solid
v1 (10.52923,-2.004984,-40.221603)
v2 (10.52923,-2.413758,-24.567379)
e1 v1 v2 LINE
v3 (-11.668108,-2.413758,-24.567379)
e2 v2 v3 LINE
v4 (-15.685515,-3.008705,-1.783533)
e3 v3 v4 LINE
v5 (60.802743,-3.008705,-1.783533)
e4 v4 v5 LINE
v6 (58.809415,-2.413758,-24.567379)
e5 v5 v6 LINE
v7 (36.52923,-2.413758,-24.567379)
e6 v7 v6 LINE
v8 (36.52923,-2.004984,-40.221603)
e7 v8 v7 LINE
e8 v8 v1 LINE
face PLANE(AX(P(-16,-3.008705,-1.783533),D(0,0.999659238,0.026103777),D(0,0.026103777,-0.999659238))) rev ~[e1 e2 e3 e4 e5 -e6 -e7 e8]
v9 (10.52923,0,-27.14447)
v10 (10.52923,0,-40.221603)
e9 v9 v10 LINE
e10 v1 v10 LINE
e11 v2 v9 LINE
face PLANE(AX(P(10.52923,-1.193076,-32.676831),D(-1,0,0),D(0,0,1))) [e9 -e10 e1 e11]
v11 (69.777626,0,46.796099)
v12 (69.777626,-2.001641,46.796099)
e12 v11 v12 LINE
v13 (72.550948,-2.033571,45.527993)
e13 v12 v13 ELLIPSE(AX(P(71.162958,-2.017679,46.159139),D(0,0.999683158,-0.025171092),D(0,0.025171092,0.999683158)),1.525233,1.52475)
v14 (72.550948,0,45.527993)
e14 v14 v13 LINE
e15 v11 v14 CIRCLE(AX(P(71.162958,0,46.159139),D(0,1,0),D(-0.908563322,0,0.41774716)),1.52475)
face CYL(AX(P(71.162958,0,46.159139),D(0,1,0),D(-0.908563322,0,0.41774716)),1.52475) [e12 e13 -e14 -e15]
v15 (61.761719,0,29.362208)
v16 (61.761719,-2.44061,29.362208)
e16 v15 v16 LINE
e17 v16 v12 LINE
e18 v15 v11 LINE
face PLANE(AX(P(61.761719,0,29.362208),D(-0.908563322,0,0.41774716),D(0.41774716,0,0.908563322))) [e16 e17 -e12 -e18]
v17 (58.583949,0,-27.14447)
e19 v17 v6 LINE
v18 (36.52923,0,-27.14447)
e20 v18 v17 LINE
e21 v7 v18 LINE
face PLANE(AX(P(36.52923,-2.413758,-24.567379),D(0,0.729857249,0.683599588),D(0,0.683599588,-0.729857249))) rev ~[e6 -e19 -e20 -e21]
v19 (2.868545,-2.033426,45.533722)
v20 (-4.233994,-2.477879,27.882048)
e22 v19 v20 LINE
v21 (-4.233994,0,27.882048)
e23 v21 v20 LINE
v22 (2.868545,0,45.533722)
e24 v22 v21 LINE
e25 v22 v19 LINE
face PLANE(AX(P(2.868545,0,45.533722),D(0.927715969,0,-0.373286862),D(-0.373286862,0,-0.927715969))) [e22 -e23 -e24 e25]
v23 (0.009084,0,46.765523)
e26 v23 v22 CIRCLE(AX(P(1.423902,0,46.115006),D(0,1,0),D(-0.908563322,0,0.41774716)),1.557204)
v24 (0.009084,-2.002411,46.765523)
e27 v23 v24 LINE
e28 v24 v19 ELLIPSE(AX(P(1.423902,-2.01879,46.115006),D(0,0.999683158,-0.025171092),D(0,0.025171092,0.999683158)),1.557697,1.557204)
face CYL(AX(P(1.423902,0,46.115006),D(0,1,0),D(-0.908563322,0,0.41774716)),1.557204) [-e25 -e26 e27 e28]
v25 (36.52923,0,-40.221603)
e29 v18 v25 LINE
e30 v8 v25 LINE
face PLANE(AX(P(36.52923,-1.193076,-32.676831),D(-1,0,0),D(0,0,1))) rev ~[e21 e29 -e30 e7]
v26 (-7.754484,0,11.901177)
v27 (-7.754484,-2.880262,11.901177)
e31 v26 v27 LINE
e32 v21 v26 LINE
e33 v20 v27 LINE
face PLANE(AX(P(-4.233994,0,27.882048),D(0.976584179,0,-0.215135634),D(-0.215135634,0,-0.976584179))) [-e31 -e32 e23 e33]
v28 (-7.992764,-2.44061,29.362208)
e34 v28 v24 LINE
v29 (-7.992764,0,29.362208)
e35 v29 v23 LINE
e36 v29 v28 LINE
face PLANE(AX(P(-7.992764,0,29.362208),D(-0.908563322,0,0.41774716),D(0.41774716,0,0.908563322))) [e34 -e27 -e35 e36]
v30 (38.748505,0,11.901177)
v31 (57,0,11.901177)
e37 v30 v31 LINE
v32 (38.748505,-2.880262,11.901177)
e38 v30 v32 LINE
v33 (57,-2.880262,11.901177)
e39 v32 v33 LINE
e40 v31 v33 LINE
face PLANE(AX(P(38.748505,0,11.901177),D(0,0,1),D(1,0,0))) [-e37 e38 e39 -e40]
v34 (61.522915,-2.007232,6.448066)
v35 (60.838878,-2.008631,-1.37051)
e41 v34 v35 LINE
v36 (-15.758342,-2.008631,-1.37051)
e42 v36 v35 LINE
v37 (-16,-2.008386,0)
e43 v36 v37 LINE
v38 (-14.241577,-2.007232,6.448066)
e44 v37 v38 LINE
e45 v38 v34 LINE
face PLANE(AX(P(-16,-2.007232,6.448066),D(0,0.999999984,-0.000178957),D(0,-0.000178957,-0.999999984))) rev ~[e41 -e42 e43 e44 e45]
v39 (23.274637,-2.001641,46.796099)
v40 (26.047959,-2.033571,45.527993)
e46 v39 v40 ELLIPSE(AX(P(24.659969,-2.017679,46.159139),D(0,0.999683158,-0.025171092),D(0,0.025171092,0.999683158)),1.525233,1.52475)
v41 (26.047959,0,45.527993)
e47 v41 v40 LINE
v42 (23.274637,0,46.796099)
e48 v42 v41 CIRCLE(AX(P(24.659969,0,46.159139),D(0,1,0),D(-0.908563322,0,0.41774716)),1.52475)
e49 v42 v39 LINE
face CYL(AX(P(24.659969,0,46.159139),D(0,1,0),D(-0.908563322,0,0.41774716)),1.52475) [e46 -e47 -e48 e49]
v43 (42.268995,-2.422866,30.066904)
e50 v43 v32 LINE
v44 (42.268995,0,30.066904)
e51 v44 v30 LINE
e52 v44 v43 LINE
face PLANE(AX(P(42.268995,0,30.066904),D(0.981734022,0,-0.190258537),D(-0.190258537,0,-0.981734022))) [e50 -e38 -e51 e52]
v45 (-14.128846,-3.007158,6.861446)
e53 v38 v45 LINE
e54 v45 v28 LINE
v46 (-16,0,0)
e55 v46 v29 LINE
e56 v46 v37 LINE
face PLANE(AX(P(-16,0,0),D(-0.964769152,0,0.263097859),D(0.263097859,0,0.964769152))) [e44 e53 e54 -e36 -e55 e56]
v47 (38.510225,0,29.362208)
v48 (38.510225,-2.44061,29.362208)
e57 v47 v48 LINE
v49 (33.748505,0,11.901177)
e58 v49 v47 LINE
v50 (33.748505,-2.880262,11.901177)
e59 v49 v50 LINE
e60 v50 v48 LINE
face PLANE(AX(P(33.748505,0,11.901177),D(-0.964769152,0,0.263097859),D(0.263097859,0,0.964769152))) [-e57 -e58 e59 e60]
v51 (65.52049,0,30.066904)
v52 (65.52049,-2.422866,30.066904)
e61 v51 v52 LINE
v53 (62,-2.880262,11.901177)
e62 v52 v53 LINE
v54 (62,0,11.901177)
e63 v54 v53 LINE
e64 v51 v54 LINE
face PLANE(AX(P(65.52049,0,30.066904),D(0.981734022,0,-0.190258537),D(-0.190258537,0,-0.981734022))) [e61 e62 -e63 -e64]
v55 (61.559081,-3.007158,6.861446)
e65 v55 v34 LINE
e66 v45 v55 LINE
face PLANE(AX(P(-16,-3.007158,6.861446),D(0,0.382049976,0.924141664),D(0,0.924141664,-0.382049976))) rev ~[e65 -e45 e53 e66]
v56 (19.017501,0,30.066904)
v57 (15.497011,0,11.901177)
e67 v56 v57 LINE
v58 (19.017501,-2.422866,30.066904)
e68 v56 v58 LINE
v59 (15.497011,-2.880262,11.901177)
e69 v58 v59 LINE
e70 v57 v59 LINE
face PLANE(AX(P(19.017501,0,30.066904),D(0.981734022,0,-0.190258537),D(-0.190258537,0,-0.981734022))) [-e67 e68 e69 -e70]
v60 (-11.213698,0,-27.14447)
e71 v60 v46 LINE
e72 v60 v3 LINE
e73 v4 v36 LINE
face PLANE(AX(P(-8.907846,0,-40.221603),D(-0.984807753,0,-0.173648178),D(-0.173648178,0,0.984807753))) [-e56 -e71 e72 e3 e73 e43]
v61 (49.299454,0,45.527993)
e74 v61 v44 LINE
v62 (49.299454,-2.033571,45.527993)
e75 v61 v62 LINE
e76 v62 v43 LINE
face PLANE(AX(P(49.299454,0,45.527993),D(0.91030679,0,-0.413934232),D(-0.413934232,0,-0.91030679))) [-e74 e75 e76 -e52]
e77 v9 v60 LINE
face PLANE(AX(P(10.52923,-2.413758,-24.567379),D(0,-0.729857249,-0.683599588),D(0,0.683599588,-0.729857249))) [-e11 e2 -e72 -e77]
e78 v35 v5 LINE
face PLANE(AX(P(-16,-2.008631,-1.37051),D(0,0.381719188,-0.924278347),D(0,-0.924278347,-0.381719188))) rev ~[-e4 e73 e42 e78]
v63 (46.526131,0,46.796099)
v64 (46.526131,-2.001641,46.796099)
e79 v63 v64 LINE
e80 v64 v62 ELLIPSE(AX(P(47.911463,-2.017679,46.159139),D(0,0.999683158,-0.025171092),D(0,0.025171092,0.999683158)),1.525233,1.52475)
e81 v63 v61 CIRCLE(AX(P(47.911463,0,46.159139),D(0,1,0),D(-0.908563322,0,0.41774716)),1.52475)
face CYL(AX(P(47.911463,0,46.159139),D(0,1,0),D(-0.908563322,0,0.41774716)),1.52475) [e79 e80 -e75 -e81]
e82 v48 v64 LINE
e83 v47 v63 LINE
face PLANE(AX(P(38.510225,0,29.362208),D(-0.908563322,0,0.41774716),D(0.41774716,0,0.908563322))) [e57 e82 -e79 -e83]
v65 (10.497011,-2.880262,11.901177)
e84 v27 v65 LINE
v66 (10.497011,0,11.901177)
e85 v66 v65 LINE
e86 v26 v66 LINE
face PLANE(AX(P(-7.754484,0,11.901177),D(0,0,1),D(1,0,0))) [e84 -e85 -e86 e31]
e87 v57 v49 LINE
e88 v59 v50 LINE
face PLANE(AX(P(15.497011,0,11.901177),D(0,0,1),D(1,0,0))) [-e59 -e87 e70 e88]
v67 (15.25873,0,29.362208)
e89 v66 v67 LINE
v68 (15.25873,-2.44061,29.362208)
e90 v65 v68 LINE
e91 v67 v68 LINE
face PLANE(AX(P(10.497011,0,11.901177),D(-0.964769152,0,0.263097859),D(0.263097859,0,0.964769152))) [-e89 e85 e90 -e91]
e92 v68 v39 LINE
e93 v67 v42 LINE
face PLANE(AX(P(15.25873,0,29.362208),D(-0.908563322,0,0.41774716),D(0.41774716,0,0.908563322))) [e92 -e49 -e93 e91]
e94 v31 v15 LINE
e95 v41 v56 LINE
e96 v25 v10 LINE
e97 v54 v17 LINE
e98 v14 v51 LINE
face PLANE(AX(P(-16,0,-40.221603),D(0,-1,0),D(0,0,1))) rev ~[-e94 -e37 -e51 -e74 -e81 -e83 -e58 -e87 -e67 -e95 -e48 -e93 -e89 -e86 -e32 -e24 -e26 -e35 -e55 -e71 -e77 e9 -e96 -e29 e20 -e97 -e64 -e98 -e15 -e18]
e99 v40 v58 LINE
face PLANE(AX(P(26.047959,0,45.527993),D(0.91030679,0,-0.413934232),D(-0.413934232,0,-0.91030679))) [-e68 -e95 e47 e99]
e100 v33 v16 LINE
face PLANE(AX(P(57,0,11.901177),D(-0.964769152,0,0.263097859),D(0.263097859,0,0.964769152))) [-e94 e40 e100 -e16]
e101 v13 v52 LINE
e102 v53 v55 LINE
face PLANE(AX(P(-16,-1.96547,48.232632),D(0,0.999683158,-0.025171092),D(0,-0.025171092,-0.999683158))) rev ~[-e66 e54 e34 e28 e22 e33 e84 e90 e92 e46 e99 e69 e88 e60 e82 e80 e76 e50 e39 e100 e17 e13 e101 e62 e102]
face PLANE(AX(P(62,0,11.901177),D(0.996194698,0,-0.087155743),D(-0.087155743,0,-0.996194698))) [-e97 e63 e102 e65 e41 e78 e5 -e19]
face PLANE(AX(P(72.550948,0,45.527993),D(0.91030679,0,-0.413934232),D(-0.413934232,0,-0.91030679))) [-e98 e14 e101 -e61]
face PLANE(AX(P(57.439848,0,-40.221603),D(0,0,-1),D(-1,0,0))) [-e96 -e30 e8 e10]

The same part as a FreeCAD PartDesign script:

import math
import FreeCAD as App
import Part
import Sketcher
from FreeCAD import Vector
Q = App.Units.Quantity

doc = App.newDocument("Part")
body = doc.addObject("PartDesign::Body", "Body")

sketch1 = body.newObject("Sketcher::SketchObject", "Sketch")
sketch1.AttachmentSupport = (doc.getObject("YZ_Plane"), [""])
sketch1.MapMode = "FlatFace"
sketch1.AttachmentOffset = App.Placement(Vector(0, 0, -16), App.Rotation())
sketch1.addGeometry(Part.LineSegment(Vector(-3, -1.8, 0), Vector(-2, -40.2, 0)), False)
sketch1.addGeometry(Part.LineSegment(Vector(-2, -40.2, 0), Vector(0, -40.2, 0)), False)
sketch1.addGeometry(Part.LineSegment(Vector(0, -40.2, 0), Vector(0, 48.2, 0)), False)
sketch1.addGeometry(Part.LineSegment(Vector(0, 48.2, 0), Vector(-2, 48.2, 0)), False)
sketch1.addGeometry(Part.LineSegment(Vector(-2, 48.2, 0), Vector(-3, 6.9, 0)), False)
sketch1.addGeometry(Part.LineSegment(Vector(-3, 6.9, 0), Vector(-2, 6.4, 0)), False)
sketch1.addGeometry(Part.LineSegment(Vector(-2, 6.4, 0), Vector(-2, -1.4, 0)), False)
sketch1.addGeometry(Part.LineSegment(Vector(-2, -1.4, 0), Vector(-3, -1.8, 0)), False)
sketch1.addConstraint(Sketcher.Constraint("Coincident", 0, 2, 1, 1))
sketch1.addConstraint(Sketcher.Constraint("Coincident", 1, 2, 2, 1))
sketch1.addConstraint(Sketcher.Constraint("Coincident", 2, 2, 3, 1))
sketch1.addConstraint(Sketcher.Constraint("Coincident", 3, 2, 4, 1))
sketch1.addConstraint(Sketcher.Constraint("Coincident", 4, 2, 5, 1))
sketch1.addConstraint(Sketcher.Constraint("Coincident", 5, 2, 6, 1))
sketch1.addConstraint(Sketcher.Constraint("Coincident", 6, 2, 7, 1))
sketch1.addConstraint(Sketcher.Constraint("Coincident", 7, 2, 0, 1))
sketch1.addConstraint(Sketcher.Constraint("Vertical", 2))
sketch1.addConstraint(Sketcher.Constraint("Horizontal", 3))
sketch1.addConstraint(Sketcher.Constraint("PointOnObject", 1, 2, -2))
sketch1.addConstraint(Sketcher.Constraint("Equal", 5, 7))
sketch1.addConstraint(Sketcher.Constraint("Distance", 4, 41.384299))
sketch1.addConstraint(Sketcher.Constraint("DistanceX", 3, 2, 3, 1, 1.96547))
sketch1.addConstraint(Sketcher.Constraint("DistanceX", 0, 2, -1, 1, 2.004301))
sketch1.addConstraint(Sketcher.Constraint("DistanceY", 0, 2, 2, 2, 88.4804))
sketch1.addConstraint(Sketcher.Constraint("DistanceX", 6, 2, 5, 2, 0.001399))
sketch1.addConstraint(Sketcher.Constraint("DistanceY", 7, 2, 5, 2, 8.231598))
sketch1.addConstraint(Sketcher.Constraint("DistanceY", 2, 1, 2, 2, 88.454235))
sketch1.addConstraint(Sketcher.Constraint("DistanceX", 4, 2, -1, 1, 3.007158))
sketch1.addConstraint(Sketcher.Constraint("DistanceX", 6, 2, -1, 1, 2.008631))
sketch1.addConstraint(Sketcher.Constraint("DistanceY", 6, 2, -1, 1, 1.37051))
sketch1.addConstraint(Sketcher.Constraint("DistanceY", 5, 2, 4, 2, 0.41338))
sketch1.addConstraint(Sketcher.Constraint("Distance", 0, 38.477347))
pad1 = body.newObject("PartDesign::Pad", "Pad")
pad1.Profile = sketch1
pad1.Length = 89.157051

sketch2 = body.newObject("Sketcher::SketchObject", "Sketch001")
sketch2.AttachmentSupport = (doc.getObject("XZ_Plane"), [""])
sketch2.MapMode = "FlatFace"
sketch2.addGeometry(Part.LineSegment(Vector(-29.6, -53.8, 0), Vector(-29.6, 61.8, 0)), False)
sketch2.addGeometry(Part.LineSegment(Vector(-29.6, 61.8, 0), Vector(86.7, 61.8, 0)), False)
sketch2.addGeometry(Part.LineSegment(Vector(86.7, 61.8, 0), Vector(86.7, -53.8, 0)), False)
sketch2.addGeometry(Part.LineSegment(Vector(86.7, -53.8, 0), Vector(-29.6, -53.8, 0)), False)
sketch2.addGeometry(Part.LineSegment(Vector(-8, 29.4, 0), Vector(-16, 0, 0)), False)
sketch2.addGeometry(Part.LineSegment(Vector(-16, 0, 0), Vector(-8.9, -40.2, 0)), False)
sketch2.addGeometry(Part.LineSegment(Vector(-8.9, -40.2, 0), Vector(57.4, -40.2, 0)), False)
sketch2.addGeometry(Part.LineSegment(Vector(57.4, -40.2, 0), Vector(62, 11.9, 0)), False)
sketch2.addGeometry(Part.LineSegment(Vector(62, 11.9, 0), Vector(65.5, 30.1, 0)), False)
sketch2.addGeometry(Part.LineSegment(Vector(65.5, 30.1, 0), Vector(72.6, 45.5, 0)), False)
sketch2.addGeometry(Part.ArcOfCircle(Part.Circle(Vector(71.2, 46.2, 0), Vector(0, 0, 1), 1.5), math.radians(-24), math.radians(155)), False)
sketch2.addGeometry(Part.LineSegment(Vector(69.8, 46.8, 0), Vector(61.8, 29.4, 0)), False)
sketch2.addGeometry(Part.LineSegment(Vector(61.8, 29.4, 0), Vector(57, 11.9, 0)), False)
sketch2.addGeometry(Part.LineSegment(Vector(57, 11.9, 0), Vector(38.7, 11.9, 0)), False)
sketch2.addGeometry(Part.LineSegment(Vector(38.7, 11.9, 0), Vector(42.3, 30.1, 0)), False)
sketch2.addGeometry(Part.LineSegment(Vector(42.3, 30.1, 0), Vector(49.3, 45.5, 0)), False)
sketch2.addGeometry(Part.ArcOfCircle(Part.Circle(Vector(47.9, 46.2, 0), Vector(0, 0, 1), 1.5), math.radians(-24), math.radians(155)), False)
sketch2.addGeometry(Part.LineSegment(Vector(46.5, 46.8, 0), Vector(38.5, 29.4, 0)), False)
sketch2.addGeometry(Part.LineSegment(Vector(38.5, 29.4, 0), Vector(33.7, 11.9, 0)), False)
sketch2.addGeometry(Part.LineSegment(Vector(33.7, 11.9, 0), Vector(15.5, 11.9, 0)), False)
sketch2.addGeometry(Part.LineSegment(Vector(15.5, 11.9, 0), Vector(19, 30.1, 0)), False)
sketch2.addGeometry(Part.LineSegment(Vector(19, 30.1, 0), Vector(26, 45.5, 0)), False)
sketch2.addGeometry(Part.ArcOfCircle(Part.Circle(Vector(24.7, 46.2, 0), Vector(0, 0, 1), 1.5), math.radians(-24), math.radians(155)), False)
sketch2.addGeometry(Part.LineSegment(Vector(23.3, 46.8, 0), Vector(15.3, 29.4, 0)), False)
sketch2.addGeometry(Part.LineSegment(Vector(15.3, 29.4, 0), Vector(10.5, 11.9, 0)), False)
sketch2.addGeometry(Part.LineSegment(Vector(10.5, 11.9, 0), Vector(-7.8, 11.9, 0)), False)
sketch2.addGeometry(Part.LineSegment(Vector(-7.8, 11.9, 0), Vector(-4.2, 27.9, 0)), False)
sketch2.addGeometry(Part.LineSegment(Vector(-4.2, 27.9, 0), Vector(2.9, 45.5, 0)), False)
sketch2.addGeometry(Part.ArcOfCircle(Part.Circle(Vector(1.4, 46.1, 0), Vector(0, 0, 1), 1.6), math.radians(-22), math.radians(155)), False)
sketch2.addGeometry(Part.LineSegment(Vector(0, 46.8, 0), Vector(-8, 29.4, 0)), False)
sketch2.addConstraint(Sketcher.Constraint("Coincident", 0, 2, 1, 1))
sketch2.addConstraint(Sketcher.Constraint("Coincident", 1, 2, 2, 1))
sketch2.addConstraint(Sketcher.Constraint("Coincident", 2, 2, 3, 1))
sketch2.addConstraint(Sketcher.Constraint("Coincident", 3, 2, 0, 1))
sketch2.addConstraint(Sketcher.Constraint("Coincident", 4, 2, 5, 1))
sketch2.addConstraint(Sketcher.Constraint("Coincident", 5, 2, 6, 1))
sketch2.addConstraint(Sketcher.Constraint("Coincident", 6, 2, 7, 1))
sketch2.addConstraint(Sketcher.Constraint("Coincident", 7, 2, 8, 1))
sketch2.addConstraint(Sketcher.Constraint("Coincident", 8, 2, 9, 1))
sketch2.addConstraint(Sketcher.Constraint("Tangent", 9, 2, 10, 1))
sketch2.addConstraint(Sketcher.Constraint("Tangent", 10, 2, 11, 1))
sketch2.addConstraint(Sketcher.Constraint("Coincident", 11, 2, 12, 1))
sketch2.addConstraint(Sketcher.Constraint("Coincident", 12, 2, 13, 1))
sketch2.addConstraint(Sketcher.Constraint("Coincident", 13, 2, 14, 1))
sketch2.addConstraint(Sketcher.Constraint("Coincident", 14, 2, 15, 1))
sketch2.addConstraint(Sketcher.Constraint("Tangent", 15, 2, 16, 1))
sketch2.addConstraint(Sketcher.Constraint("Tangent", 16, 2, 17, 1))
sketch2.addConstraint(Sketcher.Constraint("Coincident", 17, 2, 18, 1))
sketch2.addConstraint(Sketcher.Constraint("Coincident", 18, 2, 19, 1))
sketch2.addConstraint(Sketcher.Constraint("Coincident", 19, 2, 20, 1))
sketch2.addConstraint(Sketcher.Constraint("Coincident", 20, 2, 21, 1))
sketch2.addConstraint(Sketcher.Constraint("Tangent", 21, 2, 22, 1))
sketch2.addConstraint(Sketcher.Constraint("Tangent", 22, 2, 23, 1))
sketch2.addConstraint(Sketcher.Constraint("Coincident", 23, 2, 24, 1))
sketch2.addConstraint(Sketcher.Constraint("Coincident", 24, 2, 25, 1))
sketch2.addConstraint(Sketcher.Constraint("Coincident", 25, 2, 26, 1))
sketch2.addConstraint(Sketcher.Constraint("Coincident", 26, 2, 27, 1))
sketch2.addConstraint(Sketcher.Constraint("Tangent", 27, 2, 28, 1))
sketch2.addConstraint(Sketcher.Constraint("Tangent", 28, 2, 29, 1))
sketch2.addConstraint(Sketcher.Constraint("Coincident", 29, 2, 4, 1))
sketch2.addConstraint(Sketcher.Constraint("Vertical", 0))
sketch2.addConstraint(Sketcher.Constraint("Horizontal", 1))
sketch2.addConstraint(Sketcher.Constraint("Vertical", 2))
sketch2.addConstraint(Sketcher.Constraint("Horizontal", 3))
sketch2.addConstraint(Sketcher.Constraint("Horizontal", 6))
sketch2.addConstraint(Sketcher.Constraint("Horizontal", 13))
sketch2.addConstraint(Sketcher.Constraint("Horizontal", 19))
sketch2.addConstraint(Sketcher.Constraint("Horizontal", 25))
sketch2.addConstraint(Sketcher.Constraint("Equal", 10, 16))
sketch2.addConstraint(Sketcher.Constraint("Equal", 16, 22))
sketch2.addConstraint(Sketcher.Constraint("PointOnObject", 4, 2, -1))
sketch2.addConstraint(Sketcher.Constraint("Parallel", 4, 12))
sketch2.addConstraint(Sketcher.Constraint("Parallel", 8, 14))
sketch2.addConstraint(Sketcher.Constraint("Parallel", 9, 15))
sketch2.addConstraint(Sketcher.Constraint("Parallel", 11, 17))
sketch2.addConstraint(Sketcher.Constraint("Parallel", 12, 18))
sketch2.addConstraint(Sketcher.Constraint("Parallel", 14, 20))
sketch2.addConstraint(Sketcher.Constraint("Parallel", 15, 21))
sketch2.addConstraint(Sketcher.Constraint("Parallel", 17, 23))
sketch2.addConstraint(Sketcher.Constraint("Parallel", 18, 24))
sketch2.addConstraint(Sketcher.Constraint("Parallel", 23, 29))
sketch2.addConstraint(Sketcher.Constraint("Horizontal", 10, 3, 16, 3))
sketch2.addConstraint(Sketcher.Constraint("Horizontal", 16, 3, 22, 3))
sketch2.addConstraint(Sketcher.Constraint("Horizontal", 7, 2, 12, 2))
sketch2.addConstraint(Sketcher.Constraint("Horizontal", 8, 2, 14, 2))
sketch2.addConstraint(Sketcher.Constraint("Horizontal", 11, 2, 17, 2))
sketch2.addConstraint(Sketcher.Constraint("Horizontal", 13, 2, 18, 2))
sketch2.addConstraint(Sketcher.Constraint("Horizontal", 14, 2, 20, 2))
sketch2.addConstraint(Sketcher.Constraint("Horizontal", 17, 2, 23, 2))
sketch2.addConstraint(Sketcher.Constraint("Horizontal", 19, 2, 24, 2))
sketch2.addConstraint(Sketcher.Constraint("Horizontal", 23, 2, 29, 2))
sketch2.addConstraint(Sketcher.Constraint("Equal", 13, 19))
sketch2.addConstraint(Sketcher.Constraint("Equal", 19, 25))
sketch2.addConstraint(Sketcher.Constraint("Angle", 5, Q("-80 deg")))
sketch2.addConstraint(Sketcher.Constraint("Angle", 7, Q("85 deg")))
sketch2.addConstraint(Sketcher.Constraint("DistanceX", 4, 2, -1, 1, 16.0))
sketch2.addConstraint(Sketcher.Constraint("DistanceX", -1, 1, 7, 2, 62.0))
sketch2.addConstraint(Sketcher.Constraint("DistanceX", -1, 1, 12, 2, 57.0))
sketch2.addConstraint(Sketcher.Constraint("DistanceX", 1, 1, 1, 2, 116.287))
sketch2.addConstraint(Sketcher.Constraint("DistanceY", 0, 1, 0, 2, 115.611))
sketch2.addConstraint(Sketcher.Constraint("Radius", 10, 1.52475))
sketch2.addConstraint(Sketcher.Constraint("DistanceX", 0, 2, -1, 1, 29.565))
sketch2.addConstraint(Sketcher.Constraint("DistanceY", -1, 1, 0, 2, 61.798))
sketch2.addConstraint(Sketcher.Constraint("Radius", 28, 1.557204))
sketch2.addConstraint(Sketcher.Constraint("DistanceX", -1, 1, 28, 3, 1.423902))
sketch2.addConstraint(Sketcher.Constraint("DistanceY", -1, 1, 10, 2, 46.796099))
sketch2.addConstraint(Sketcher.Constraint("DistanceX", -1, 1, 20, 2, 19.017501))
sketch2.addConstraint(Sketcher.Constraint("DistanceY", 27, 2, 28, 2, 1.231801))
sketch2.addConstraint(Sketcher.Constraint("Distance", 4, 30.43444))
sketch2.addConstraint(Sketcher.Constraint("Distance", 7, 52.321881))
sketch2.addConstraint(Sketcher.Constraint("Distance", 9, 16.984481))
sketch2.addConstraint(Sketcher.Constraint("Distance", 26, 16.364049))
sketch2.addConstraint(Sketcher.Constraint("DistanceX", 6, 1, 6, 2, 66.347694))
sketch2.addConstraint(Sketcher.Constraint("DistanceX", 13, 2, 13, 1, 18.251495))
sketch2.addConstraint(Sketcher.Constraint("DistanceY", -1, 1, 10, 3, 46.159139))
sketch2.addConstraint(Sketcher.Constraint("DistanceX", -1, 1, 22, 3, 24.659969))
pocket1 = body.newObject("PartDesign::Pocket", "Pocket")
pocket1.Profile = sketch2
pocket1.Type = "ThroughAll"
pocket1.Reversed = True

sketch3 = body.newObject("Sketcher::SketchObject", "Sketch002")
sketch3.AttachmentSupport = (doc.getObject("YZ_Plane"), [""])
sketch3.MapMode = "FlatFace"
sketch3.AttachmentOffset = App.Placement(Vector(0, 0, 10.52923), App.Rotation())
sketch3.addGeometry(Part.LineSegment(Vector(0, -27.1, 0), Vector(-2.4, -24.6, 0)), False)
sketch3.addGeometry(Part.LineSegment(Vector(-2.4, -24.6, 0), Vector(-2, -40.2, 0)), False)
sketch3.addGeometry(Part.LineSegment(Vector(-2, -40.2, 0), Vector(0, -40.2, 0)), False)
sketch3.addGeometry(Part.LineSegment(Vector(0, -40.2, 0), Vector(0, -27.1, 0)), False)
sketch3.addConstraint(Sketcher.Constraint("Coincident", 0, 2, 1, 1))
sketch3.addConstraint(Sketcher.Constraint("Coincident", 1, 2, 2, 1))
sketch3.addConstraint(Sketcher.Constraint("Coincident", 2, 2, 3, 1))
sketch3.addConstraint(Sketcher.Constraint("Coincident", 3, 2, 0, 1))
sketch3.addConstraint(Sketcher.Constraint("Vertical", 3))
sketch3.addConstraint(Sketcher.Constraint("PointOnObject", 2, 2, -2))
sketch3.addConstraint(Sketcher.Constraint("DistanceX", 1, 2, -1, 1, 2.004301))
sketch3.addConstraint(Sketcher.Constraint("DistanceY", 3, 1, 3, 2, 13.077133))
sketch3.addConstraint(Sketcher.Constraint("DistanceX", 0, 2, -1, 1, 2.413758))
sketch3.addConstraint(Sketcher.Constraint("DistanceY", 0, 2, -1, 1, 24.567379))
sketch3.addConstraint(Sketcher.Constraint("DistanceY", 3, 2, -1, 1, 27.14447))
sketch3.addConstraint(Sketcher.Constraint("DistanceY", 1, 2, 0, 2, 15.680389))
pocket2 = body.newObject("PartDesign::Pocket", "Pocket001")
pocket2.Profile = sketch3
pocket2.Type = "ThroughAll"

sketch4 = body.newObject("Sketcher::SketchObject", "Sketch003")
sketch4.AttachmentSupport = (doc.getObject("YZ_Plane"), [""])
sketch4.MapMode = "FlatFace"
sketch4.AttachmentOffset = App.Placement(Vector(0, 0, 36.52923), App.Rotation())
sketch4.addGeometry(Part.LineSegment(Vector(0, -27.1, 0), Vector(-2.4, -24.6, 0)), False)
sketch4.addGeometry(Part.LineSegment(Vector(-2.4, -24.6, 0), Vector(-2, -40.2, 0)), False)
sketch4.addGeometry(Part.LineSegment(Vector(-2, -40.2, 0), Vector(0, -40.2, 0)), False)
sketch4.addGeometry(Part.LineSegment(Vector(0, -40.2, 0), Vector(0, -27.1, 0)), False)
sketch4.addConstraint(Sketcher.Constraint("Coincident", 0, 2, 1, 1))
sketch4.addConstraint(Sketcher.Constraint("Coincident", 1, 2, 2, 1))
sketch4.addConstraint(Sketcher.Constraint("Coincident", 2, 2, 3, 1))
sketch4.addConstraint(Sketcher.Constraint("Coincident", 3, 2, 0, 1))
sketch4.addConstraint(Sketcher.Constraint("Vertical", 3))
sketch4.addConstraint(Sketcher.Constraint("PointOnObject", 2, 2, -2))
sketch4.addConstraint(Sketcher.Constraint("DistanceX", 1, 2, -1, 1, 2.004301))
sketch4.addConstraint(Sketcher.Constraint("DistanceY", 3, 1, 3, 2, 13.077133))
sketch4.addConstraint(Sketcher.Constraint("DistanceX", 0, 2, -1, 1, 2.413758))
sketch4.addConstraint(Sketcher.Constraint("DistanceY", 0, 2, -1, 1, 24.567379))
sketch4.addConstraint(Sketcher.Constraint("DistanceY", 3, 2, -1, 1, 27.14447))
sketch4.addConstraint(Sketcher.Constraint("DistanceY", 1, 2, 0, 2, 15.680389))
pocket3 = body.newObject("PartDesign::Pocket", "Pocket002")
pocket3.Profile = sketch4
pocket3.Type = "ThroughAll"
pocket3.Reversed = True

doc.recompute()
